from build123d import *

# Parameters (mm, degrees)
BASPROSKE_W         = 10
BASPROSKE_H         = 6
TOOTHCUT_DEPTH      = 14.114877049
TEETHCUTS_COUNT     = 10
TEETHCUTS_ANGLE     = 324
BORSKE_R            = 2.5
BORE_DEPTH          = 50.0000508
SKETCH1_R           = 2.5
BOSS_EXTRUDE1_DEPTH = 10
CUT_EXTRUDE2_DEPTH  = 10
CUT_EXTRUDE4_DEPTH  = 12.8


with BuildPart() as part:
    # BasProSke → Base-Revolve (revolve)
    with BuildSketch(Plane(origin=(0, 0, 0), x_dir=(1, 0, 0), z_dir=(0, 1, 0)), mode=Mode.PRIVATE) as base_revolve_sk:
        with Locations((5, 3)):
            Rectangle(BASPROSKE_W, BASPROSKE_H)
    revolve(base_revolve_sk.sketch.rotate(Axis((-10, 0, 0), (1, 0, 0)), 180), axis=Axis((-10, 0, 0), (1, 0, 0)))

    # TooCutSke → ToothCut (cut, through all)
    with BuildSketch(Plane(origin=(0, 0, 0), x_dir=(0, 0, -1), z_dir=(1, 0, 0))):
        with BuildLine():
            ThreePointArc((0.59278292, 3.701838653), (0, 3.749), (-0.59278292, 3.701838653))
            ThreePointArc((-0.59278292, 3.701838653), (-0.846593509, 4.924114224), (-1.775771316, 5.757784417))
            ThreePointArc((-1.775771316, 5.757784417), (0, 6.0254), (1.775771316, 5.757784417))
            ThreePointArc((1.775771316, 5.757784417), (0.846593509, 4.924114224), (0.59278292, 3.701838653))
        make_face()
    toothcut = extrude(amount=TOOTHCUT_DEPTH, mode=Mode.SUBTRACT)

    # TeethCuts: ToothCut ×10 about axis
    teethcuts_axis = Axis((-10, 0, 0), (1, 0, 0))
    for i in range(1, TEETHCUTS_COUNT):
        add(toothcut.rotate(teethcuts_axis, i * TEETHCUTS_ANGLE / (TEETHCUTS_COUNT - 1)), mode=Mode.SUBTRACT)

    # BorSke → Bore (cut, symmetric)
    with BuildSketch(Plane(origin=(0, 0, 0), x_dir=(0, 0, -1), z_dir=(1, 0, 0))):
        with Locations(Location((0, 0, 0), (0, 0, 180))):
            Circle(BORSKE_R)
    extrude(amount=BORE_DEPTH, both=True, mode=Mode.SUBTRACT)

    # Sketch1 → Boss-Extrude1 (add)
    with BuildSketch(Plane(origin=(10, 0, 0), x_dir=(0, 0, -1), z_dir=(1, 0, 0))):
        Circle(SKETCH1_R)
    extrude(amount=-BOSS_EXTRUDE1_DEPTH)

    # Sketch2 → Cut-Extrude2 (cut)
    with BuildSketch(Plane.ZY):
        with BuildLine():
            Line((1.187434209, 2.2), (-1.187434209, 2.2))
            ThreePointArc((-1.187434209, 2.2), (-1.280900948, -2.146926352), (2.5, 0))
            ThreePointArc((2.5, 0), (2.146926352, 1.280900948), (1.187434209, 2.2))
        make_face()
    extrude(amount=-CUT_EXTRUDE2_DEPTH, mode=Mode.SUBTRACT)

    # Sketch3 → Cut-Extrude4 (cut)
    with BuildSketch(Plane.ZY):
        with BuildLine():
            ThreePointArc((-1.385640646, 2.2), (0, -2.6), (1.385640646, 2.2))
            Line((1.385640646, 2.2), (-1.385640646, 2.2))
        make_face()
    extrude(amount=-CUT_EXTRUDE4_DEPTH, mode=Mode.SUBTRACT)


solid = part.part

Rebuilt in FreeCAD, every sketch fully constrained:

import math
import FreeCAD as App
import Part
import Sketcher
from FreeCAD import Vector
Q = App.Units.Quantity

doc = App.newDocument("Part")
body = doc.addObject("PartDesign::Body", "Body")

sketch1 = body.newObject("Sketcher::SketchObject", "Sketch")
sketch1.AttachmentSupport = (doc.getObject("XZ_Plane"), [""])
sketch1.MapMode = "FlatFace"
sketch1.addGeometry([
    Part.LineSegment(Vector(0, -6, 0), Vector(0, 0, 0)),
    Part.LineSegment(Vector(0, 0, 0), Vector(10, 0, 0)),
    Part.LineSegment(Vector(10, 0, 0), Vector(10, -6, 0)),
    Part.LineSegment(Vector(10, -6, 0), Vector(0, -6, 0)),
], False)
sketch1.addConstraint([
    Sketcher.Constraint("Coincident", 0, 2, 1, 1),
    Sketcher.Constraint("Coincident", 1, 2, 2, 1),
    Sketcher.Constraint("Coincident", 2, 2, 3, 1),
    Sketcher.Constraint("Coincident", 3, 2, 0, 1),
    Sketcher.Constraint("Vertical", 0),
    Sketcher.Constraint("Horizontal", 1),
    Sketcher.Constraint("Vertical", 2),
    Sketcher.Constraint("Horizontal", 3),
    Sketcher.Constraint("Coincident", 0, 2, -1, 1),
    Sketcher.Constraint("DistanceX", 1, 1, 1, 2, Q("10 mm")),
    Sketcher.Constraint("DistanceY", 0, 1, 0, 2, Q("6 mm")),
])
revolution = body.newObject("PartDesign::Revolution", "Revolution")
revolution.Profile = sketch1
revolution.ReferenceAxis = (sketch1, ["H_Axis"])
revolution.Angle = 360

sketch2 = body.newObject("Sketcher::SketchObject", "Sketch001")
sketch2.AttachmentSupport = (doc.getObject("YZ_Plane"), [""])
sketch2.MapMode = "FlatFace"
sketch2.addGeometry([
    Part.ArcOfCircle(Part.Circle(Vector(0, 0, 0), Vector(0, 0, 1), 3.7), math.radians(-9.1), math.radians(9.1)),
    Part.ArcOfCircle(Part.Circle(Vector(3.9, -2.6, 0), Vector(0, 0, 1), 2), math.radians(24), math.radians(96)),
    Part.ArcOfCircle(Part.Circle(Vector(0, 0, 0), Vector(0, 0, 1), 6), math.radians(-17), math.radians(17)),
    Part.ArcOfCircle(Part.Circle(Vector(3.9, 2.6, 0), Vector(0, 0, 1), 2), math.radians(-96), math.radians(-24)),
], False)
sketch2.addConstraint([
    Sketcher.Constraint("Coincident", 0, 1, 1, 2),
    Sketcher.Constraint("Coincident", 1, 1, 2, 1),
    Sketcher.Constraint("Coincident", 2, 2, 3, 2),
    Sketcher.Constraint("Coincident", 3, 1, 0, 2),
    Sketcher.Constraint("Coincident", 0, 3, -1, 1),
    Sketcher.Constraint("Coincident", 2, 3, -1, 1),
    Sketcher.Constraint("Equal", 1, 3),
    Sketcher.Constraint("Symmetric", 1, 3, 3, 3, -1),
    Sketcher.Constraint("Radius", 1, Q("2 mm")),
    Sketcher.Constraint("Radius", 0, Q("3.749 mm")),
    Sketcher.Constraint("Radius", 2, Q("6.0254 mm")),
    Sketcher.Constraint("DistanceX", -1, 1, 0, 1, Q("3.701839 mm")),
    Sketcher.Constraint("DistanceY", 1, 1, -1, 1, Q("1.775771 mm")),
])
pocket1 = body.newObject("PartDesign::Pocket", "Pocket")
pocket1.Profile = sketch2
pocket1.Type = "ThroughAll"
pocket1.Reversed = True
doc.recompute()

polarpattern = body.newObject("PartDesign::PolarPattern", "PolarPattern")
polarpattern.Originals = [pocket1]
polarpattern.Axis = (doc.getObject("X_Axis"), [""])
polarpattern.Angle = 360
polarpattern.Occurrences = 10
body.Tip = polarpattern

sketch3 = body.newObject("Sketcher::SketchObject", "Sketch002")
sketch3.AttachmentSupport = (doc.getObject("YZ_Plane"), [""])
sketch3.MapMode = "FlatFace"
sketch3.addGeometry(Part.Circle(Vector(0, 0, 0), Vector(0, 0, 1), 2.5), False)
sketch3.addConstraint([
    Sketcher.Constraint("Coincident", 0, 3, -1, 1),
    Sketcher.Constraint("Diameter", 0, Q("5 mm")),
])
pocket2 = body.newObject("PartDesign::Pocket", "Pocket001")
pocket2.Profile = sketch3
pocket2.Length = 100.000102
pocket2.Midplane = True

sketch4 = body.newObject("Sketcher::SketchObject", "Sketch003")
sketch4.AttachmentSupport = (doc.getObject("YZ_Plane"), [""])
sketch4.MapMode = "FlatFace"
sketch4.AttachmentOffset = App.Placement(Vector(0, 0, 10), App.Rotation())
sketch4.addGeometry(Part.Circle(Vector(0, 0, 0), Vector(0, 0, 1), 2.5), False)
sketch4.addConstraint([
    Sketcher.Constraint("Coincident", 0, 3, -1, 1),
    Sketcher.Constraint("Diameter", 0, Q("5 mm")),
])
pad1 = body.newObject("PartDesign::Pad", "Pad")
pad1.Profile = sketch4
pad1.Length = 10
pad1.Reversed = True

sketch5 = body.newObject("Sketcher::SketchObject", "Sketch004")
sketch5.AttachmentSupport = (doc.getObject("YZ_Plane"), [""])
sketch5.MapMode = "FlatFace"
sketch5.addGeometry([
    Part.LineSegment(Vector(2.2, 1.2, 0), Vector(2.2, -1.2, 0)),
    Part.ArcOfCircle(Part.Circle(Vector(0, 0, 0), Vector(0, 0, 1), 2.5), math.radians(90), math.radians(332)),
    Part.ArcOfCircle(Part.Circle(Vector(0, 0, 0), Vector(0, 0, 1), 2.5), math.radians(28), math.radians(90)),
], False)
sketch5.addConstraint([
    Sketcher.Constraint("Coincident", 0, 2, 1, 2),
    Sketcher.Constraint("Tangent", 1, 1, 2, 2),
    Sketcher.Constraint("Coincident", 2, 1, 0, 1),
    Sketcher.Constraint("Vertical", 0),
    Sketcher.Constraint("Coincident", 1, 3, -1, 1),
    Sketcher.Constraint("Equal", 1, 2),
    Sketcher.Constraint("PointOnObject", 1, 1, -2),
    Sketcher.Constraint("Radius", 1, Q("2.5 mm")),
    Sketcher.Constraint("DistanceX", -1, 1, 0, 2, Q("2.2 mm")),
])
pocket3 = body.newObject("PartDesign::Pocket", "Pocket002")
pocket3.Profile = sketch5
pocket3.Length = 10
pocket3.Reversed = True

sketch6 = body.newObject("Sketcher::SketchObject", "Sketch005")
sketch6.AttachmentSupport = (doc.getObject("YZ_Plane"), [""])
sketch6.MapMode = "FlatFace"
sketch6.addGeometry([
    Part.ArcOfCircle(Part.Circle(Vector(0, 0, 0), Vector(0, 0, 1), 2.6), math.radians(32), math.radians(328)),
    Part.LineSegment(Vector(2.2, 1.4, 0), Vector(2.2, -1.4, 0)),
], False)
sketch6.addConstraint([
    Sketcher.Constraint("Coincident", 0, 1, 1, 1),
    Sketcher.Constraint("Coincident", 1, 2, 0, 2),
    Sketcher.Constraint("Vertical", 1),
    Sketcher.Constraint("Coincident", 0, 3, -1, 1),
    Sketcher.Constraint("Radius", 0, Q("2.6 mm")),
    Sketcher.Constraint("DistanceX", -1, 1, 0, 1, Q("2.2 mm")),
])
pocket4 = body.newObject("PartDesign::Pocket", "Pocket003")
pocket4.Profile = sketch6
pocket4.Length = 12.8
pocket4.Reversed = True

doc.recompute()
